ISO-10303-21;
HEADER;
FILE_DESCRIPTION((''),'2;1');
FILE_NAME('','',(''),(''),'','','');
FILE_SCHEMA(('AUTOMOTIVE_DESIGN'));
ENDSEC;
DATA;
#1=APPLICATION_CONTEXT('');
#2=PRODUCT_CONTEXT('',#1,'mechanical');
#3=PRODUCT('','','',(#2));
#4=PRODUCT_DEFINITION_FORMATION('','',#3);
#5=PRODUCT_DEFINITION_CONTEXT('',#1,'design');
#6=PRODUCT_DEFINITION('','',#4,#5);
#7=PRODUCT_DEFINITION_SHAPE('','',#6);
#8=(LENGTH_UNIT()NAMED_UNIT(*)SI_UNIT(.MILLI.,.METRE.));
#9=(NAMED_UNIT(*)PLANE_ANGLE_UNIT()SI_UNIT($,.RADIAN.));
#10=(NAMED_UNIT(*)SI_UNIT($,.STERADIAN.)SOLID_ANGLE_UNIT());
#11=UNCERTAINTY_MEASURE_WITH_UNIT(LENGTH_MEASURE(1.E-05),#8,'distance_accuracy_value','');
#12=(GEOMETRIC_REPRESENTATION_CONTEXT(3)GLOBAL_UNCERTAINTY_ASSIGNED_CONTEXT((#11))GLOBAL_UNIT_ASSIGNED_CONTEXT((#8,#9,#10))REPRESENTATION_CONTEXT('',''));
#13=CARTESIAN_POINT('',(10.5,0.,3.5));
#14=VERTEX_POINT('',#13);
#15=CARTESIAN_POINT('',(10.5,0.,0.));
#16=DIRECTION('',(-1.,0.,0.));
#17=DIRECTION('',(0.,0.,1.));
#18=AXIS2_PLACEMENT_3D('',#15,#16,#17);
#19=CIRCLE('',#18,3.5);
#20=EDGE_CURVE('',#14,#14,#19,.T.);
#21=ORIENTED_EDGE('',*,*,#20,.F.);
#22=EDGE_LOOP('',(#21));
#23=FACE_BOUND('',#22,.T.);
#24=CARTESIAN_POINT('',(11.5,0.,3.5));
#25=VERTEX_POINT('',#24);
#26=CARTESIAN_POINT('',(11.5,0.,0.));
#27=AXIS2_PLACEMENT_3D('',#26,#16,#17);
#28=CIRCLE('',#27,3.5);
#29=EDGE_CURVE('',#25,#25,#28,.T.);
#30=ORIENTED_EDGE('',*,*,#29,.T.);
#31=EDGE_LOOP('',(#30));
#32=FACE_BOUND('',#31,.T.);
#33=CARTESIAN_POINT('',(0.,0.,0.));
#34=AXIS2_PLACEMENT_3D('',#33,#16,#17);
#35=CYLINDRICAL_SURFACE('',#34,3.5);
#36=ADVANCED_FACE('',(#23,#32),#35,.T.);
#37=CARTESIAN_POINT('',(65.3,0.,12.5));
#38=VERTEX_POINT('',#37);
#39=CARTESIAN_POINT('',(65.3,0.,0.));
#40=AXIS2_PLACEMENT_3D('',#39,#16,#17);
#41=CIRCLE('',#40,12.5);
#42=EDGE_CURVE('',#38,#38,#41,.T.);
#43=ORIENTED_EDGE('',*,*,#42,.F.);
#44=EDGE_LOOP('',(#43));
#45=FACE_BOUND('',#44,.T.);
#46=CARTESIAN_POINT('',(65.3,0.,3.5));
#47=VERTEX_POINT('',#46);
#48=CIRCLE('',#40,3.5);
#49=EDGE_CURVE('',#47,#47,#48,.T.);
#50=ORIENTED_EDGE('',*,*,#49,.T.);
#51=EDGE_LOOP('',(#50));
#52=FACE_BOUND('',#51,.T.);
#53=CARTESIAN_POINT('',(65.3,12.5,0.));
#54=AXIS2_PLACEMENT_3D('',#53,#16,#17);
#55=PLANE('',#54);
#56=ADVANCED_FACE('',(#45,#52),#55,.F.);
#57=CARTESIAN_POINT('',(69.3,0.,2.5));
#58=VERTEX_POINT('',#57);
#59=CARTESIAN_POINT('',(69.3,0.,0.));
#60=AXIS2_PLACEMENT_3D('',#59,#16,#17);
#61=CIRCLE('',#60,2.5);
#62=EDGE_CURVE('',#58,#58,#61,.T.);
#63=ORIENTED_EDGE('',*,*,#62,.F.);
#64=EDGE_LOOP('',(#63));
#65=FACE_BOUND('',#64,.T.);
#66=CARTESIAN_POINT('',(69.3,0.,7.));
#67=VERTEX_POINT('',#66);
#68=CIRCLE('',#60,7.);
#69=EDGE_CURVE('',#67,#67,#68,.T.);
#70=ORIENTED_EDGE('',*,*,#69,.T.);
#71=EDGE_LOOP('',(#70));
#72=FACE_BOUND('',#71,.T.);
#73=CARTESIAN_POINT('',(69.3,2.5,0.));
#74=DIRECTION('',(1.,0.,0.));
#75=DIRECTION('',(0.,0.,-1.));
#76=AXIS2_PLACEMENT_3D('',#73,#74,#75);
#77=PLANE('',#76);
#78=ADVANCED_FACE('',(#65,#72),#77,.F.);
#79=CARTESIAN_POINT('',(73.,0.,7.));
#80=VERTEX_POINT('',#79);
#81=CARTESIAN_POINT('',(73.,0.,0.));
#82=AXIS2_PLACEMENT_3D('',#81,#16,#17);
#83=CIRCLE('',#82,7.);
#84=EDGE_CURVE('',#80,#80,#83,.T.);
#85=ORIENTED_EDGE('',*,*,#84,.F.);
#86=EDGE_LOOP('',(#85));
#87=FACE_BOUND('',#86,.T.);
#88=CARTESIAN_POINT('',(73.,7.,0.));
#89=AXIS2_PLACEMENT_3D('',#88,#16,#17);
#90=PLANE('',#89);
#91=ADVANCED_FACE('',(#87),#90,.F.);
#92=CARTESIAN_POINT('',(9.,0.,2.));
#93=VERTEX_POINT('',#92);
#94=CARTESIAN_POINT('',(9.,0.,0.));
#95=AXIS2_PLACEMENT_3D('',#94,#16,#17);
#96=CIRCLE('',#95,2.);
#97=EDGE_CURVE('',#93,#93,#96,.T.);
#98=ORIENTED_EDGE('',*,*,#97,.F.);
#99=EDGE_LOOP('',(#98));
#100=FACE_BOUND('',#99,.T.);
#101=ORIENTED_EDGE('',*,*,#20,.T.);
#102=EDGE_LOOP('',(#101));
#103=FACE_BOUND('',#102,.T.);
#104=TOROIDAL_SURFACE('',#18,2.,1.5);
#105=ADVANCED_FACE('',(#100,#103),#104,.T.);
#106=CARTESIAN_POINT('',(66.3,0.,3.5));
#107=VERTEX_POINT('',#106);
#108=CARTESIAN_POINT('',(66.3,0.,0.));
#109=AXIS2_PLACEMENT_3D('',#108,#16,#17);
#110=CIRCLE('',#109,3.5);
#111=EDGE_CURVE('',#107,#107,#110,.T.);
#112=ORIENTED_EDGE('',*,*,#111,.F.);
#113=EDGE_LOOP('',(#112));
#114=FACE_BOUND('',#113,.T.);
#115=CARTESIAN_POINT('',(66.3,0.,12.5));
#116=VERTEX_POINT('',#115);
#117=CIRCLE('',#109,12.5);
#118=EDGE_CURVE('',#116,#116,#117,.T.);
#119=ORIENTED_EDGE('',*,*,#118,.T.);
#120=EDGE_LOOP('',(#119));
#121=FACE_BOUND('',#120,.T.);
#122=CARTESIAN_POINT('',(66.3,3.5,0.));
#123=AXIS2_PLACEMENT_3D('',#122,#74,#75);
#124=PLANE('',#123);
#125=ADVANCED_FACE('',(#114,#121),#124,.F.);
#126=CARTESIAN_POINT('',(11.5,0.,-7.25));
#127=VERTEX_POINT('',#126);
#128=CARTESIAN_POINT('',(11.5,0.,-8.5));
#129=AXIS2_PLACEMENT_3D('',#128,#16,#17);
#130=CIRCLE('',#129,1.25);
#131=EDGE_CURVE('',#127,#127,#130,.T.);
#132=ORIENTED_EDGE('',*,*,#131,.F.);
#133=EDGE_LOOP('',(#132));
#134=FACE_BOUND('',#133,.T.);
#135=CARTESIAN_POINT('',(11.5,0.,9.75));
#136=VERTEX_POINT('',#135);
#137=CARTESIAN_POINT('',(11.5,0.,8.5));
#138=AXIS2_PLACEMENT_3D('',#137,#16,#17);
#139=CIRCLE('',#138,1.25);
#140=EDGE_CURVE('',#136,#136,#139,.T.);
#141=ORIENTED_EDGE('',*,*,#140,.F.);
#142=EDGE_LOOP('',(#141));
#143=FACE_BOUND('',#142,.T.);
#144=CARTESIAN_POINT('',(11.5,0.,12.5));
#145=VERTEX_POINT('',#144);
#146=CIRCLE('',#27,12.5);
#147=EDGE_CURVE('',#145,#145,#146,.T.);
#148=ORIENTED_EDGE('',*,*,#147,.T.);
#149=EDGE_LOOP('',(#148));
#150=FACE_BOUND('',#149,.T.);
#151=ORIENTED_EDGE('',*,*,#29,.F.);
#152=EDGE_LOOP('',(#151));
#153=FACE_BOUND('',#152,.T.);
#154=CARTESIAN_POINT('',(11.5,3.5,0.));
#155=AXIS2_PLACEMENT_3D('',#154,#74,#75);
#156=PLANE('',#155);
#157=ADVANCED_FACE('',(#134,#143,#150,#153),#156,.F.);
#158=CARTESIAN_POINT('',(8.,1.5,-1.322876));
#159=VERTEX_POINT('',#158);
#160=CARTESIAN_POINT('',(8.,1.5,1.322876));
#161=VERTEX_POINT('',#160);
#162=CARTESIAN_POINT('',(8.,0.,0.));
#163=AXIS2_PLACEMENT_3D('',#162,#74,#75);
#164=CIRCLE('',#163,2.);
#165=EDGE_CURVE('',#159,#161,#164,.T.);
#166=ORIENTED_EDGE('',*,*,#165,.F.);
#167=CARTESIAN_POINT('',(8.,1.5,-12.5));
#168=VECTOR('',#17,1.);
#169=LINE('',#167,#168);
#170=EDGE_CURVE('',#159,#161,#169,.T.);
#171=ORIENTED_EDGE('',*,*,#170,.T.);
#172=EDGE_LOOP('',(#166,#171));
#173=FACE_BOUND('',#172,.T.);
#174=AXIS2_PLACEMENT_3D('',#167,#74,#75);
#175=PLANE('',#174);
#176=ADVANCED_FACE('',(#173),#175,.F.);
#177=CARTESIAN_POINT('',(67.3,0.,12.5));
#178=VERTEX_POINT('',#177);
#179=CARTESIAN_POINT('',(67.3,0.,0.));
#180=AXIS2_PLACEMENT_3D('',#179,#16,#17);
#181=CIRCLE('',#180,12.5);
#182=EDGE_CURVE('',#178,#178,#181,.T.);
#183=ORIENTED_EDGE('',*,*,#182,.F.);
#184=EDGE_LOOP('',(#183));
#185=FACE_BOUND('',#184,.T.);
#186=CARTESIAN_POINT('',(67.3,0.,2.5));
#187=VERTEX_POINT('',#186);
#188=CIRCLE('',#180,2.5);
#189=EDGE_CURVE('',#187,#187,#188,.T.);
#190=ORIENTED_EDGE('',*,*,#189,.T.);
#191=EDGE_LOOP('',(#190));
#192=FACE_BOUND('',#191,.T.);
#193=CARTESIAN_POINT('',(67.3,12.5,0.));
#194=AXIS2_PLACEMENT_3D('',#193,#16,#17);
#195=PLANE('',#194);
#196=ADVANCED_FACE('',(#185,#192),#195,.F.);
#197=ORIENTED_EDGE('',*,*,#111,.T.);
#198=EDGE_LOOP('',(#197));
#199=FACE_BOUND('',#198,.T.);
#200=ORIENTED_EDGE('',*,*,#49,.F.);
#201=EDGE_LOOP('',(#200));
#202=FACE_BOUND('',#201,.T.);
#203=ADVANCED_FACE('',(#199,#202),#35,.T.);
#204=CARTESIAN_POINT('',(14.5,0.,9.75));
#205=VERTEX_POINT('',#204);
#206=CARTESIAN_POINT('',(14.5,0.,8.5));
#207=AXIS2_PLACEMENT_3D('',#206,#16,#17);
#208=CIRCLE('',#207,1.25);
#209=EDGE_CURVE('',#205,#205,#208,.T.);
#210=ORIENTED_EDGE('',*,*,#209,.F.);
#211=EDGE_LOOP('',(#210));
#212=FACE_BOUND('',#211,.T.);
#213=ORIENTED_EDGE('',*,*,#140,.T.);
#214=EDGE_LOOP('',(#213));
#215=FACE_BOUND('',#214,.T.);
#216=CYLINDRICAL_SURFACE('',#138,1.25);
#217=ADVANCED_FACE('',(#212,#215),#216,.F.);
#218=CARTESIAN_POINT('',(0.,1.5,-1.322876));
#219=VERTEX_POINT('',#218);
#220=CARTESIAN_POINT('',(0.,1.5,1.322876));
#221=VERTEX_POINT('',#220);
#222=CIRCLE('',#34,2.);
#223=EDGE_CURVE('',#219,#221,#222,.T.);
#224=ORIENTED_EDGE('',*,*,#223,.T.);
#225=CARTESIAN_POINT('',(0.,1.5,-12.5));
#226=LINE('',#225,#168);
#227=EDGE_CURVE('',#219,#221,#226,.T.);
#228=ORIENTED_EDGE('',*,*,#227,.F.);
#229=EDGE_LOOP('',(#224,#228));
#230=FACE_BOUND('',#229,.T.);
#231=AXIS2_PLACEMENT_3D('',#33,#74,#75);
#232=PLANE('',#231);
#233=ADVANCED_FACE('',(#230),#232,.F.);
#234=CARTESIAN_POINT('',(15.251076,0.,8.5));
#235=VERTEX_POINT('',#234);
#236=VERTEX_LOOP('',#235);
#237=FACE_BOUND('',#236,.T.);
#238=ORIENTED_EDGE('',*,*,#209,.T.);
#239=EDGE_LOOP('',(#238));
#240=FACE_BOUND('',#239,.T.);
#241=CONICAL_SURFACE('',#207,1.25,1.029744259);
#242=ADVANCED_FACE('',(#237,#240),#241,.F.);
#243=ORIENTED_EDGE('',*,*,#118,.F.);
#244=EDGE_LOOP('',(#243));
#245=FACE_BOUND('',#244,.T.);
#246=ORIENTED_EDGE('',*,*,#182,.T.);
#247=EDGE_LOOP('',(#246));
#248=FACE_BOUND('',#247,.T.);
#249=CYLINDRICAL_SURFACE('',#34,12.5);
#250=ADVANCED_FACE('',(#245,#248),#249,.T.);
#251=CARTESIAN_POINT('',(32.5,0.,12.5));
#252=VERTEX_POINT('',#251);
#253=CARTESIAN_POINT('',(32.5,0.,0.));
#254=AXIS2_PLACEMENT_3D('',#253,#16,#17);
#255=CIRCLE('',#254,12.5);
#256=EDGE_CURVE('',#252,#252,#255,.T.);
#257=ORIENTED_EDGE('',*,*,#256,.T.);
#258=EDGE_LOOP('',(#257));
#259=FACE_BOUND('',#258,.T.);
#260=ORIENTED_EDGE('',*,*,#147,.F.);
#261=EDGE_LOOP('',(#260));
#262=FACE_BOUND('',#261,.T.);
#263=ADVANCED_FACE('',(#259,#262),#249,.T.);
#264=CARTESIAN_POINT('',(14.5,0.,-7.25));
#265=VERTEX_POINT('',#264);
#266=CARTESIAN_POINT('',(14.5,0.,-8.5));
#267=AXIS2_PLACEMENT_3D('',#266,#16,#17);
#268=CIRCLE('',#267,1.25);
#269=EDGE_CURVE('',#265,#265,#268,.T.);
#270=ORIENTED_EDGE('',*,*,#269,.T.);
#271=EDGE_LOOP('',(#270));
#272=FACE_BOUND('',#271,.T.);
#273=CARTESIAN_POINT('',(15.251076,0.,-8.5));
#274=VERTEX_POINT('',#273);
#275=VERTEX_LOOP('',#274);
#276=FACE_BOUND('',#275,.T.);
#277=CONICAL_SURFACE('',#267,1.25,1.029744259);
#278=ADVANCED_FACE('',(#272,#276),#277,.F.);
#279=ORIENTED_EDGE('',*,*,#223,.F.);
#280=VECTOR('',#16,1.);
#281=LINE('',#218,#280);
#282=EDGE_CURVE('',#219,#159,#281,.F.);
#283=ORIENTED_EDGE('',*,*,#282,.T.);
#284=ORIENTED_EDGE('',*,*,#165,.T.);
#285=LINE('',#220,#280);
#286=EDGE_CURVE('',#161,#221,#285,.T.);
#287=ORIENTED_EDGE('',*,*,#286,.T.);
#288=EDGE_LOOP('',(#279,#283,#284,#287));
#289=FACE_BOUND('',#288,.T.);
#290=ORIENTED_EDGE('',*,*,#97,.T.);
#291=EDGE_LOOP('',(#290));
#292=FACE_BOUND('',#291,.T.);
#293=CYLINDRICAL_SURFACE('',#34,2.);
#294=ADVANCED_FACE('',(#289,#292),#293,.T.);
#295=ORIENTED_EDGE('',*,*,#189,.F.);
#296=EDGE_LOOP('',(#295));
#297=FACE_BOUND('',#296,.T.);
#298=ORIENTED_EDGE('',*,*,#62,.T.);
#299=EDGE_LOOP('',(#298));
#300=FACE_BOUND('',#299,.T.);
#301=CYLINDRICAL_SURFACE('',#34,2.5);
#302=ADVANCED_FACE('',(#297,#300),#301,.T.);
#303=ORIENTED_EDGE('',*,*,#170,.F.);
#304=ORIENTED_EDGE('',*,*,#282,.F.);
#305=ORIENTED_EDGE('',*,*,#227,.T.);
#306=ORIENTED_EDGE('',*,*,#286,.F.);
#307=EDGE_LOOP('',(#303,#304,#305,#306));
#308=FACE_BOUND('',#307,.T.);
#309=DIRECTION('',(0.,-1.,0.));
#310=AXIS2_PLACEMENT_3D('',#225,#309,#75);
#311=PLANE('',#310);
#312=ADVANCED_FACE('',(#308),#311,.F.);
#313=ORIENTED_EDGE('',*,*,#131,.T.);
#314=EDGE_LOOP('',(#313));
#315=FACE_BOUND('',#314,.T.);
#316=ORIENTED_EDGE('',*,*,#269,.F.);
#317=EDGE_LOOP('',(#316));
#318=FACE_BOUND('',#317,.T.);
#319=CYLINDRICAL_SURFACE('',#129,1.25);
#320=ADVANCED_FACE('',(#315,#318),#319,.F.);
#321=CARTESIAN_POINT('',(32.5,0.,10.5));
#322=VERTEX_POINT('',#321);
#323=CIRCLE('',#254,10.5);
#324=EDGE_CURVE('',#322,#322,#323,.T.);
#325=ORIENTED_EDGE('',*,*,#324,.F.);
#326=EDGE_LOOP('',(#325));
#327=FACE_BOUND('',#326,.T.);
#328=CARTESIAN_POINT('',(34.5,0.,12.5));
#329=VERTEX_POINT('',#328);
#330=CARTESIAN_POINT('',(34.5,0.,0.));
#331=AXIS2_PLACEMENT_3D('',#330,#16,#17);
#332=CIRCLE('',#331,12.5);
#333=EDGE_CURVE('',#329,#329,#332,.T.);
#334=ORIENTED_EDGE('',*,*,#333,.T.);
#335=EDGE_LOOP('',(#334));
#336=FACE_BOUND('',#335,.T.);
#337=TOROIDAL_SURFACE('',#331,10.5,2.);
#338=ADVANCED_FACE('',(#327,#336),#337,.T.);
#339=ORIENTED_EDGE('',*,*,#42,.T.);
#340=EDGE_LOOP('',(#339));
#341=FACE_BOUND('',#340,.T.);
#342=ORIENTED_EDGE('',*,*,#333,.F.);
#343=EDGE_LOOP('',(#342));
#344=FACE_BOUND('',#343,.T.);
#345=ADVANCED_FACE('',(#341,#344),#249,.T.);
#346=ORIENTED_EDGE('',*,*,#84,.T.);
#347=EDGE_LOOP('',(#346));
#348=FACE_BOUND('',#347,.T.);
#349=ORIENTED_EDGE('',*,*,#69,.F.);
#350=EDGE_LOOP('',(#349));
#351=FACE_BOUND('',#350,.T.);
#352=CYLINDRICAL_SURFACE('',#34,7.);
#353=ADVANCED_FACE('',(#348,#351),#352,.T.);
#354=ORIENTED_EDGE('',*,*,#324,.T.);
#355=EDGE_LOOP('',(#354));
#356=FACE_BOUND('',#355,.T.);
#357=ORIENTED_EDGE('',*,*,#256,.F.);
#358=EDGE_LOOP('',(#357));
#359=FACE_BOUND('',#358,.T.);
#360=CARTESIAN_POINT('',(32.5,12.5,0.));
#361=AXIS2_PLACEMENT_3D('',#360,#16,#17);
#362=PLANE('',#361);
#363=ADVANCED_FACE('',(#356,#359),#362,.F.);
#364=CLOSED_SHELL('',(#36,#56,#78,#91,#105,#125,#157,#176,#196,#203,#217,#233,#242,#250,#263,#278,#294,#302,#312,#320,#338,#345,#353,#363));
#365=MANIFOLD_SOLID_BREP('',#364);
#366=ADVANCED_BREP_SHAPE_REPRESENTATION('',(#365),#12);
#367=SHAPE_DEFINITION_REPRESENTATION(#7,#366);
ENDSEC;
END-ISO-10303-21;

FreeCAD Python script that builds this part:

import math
import FreeCAD as App
import Part
import Sketcher
Q = App.Units.Quantity


def add_polygon(sketch, points):
    """Adds a closed chain of lines whose ends are joined by coincident constraints."""
    first, n = sketch.GeometryCount, len(points)
    for a, b in zip(points, points[1:] + points[:1]):
        sketch.addGeometry(Part.LineSegment(App.Vector(*a, 0), App.Vector(*b, 0)), False)
    for i in range(n):
        sketch.addConstraint(Sketcher.Constraint("Coincident", first + i, 2, first + (i + 1) % n, 1))

doc = App.newDocument("Part")
params = doc.addObject("Spreadsheet::Sheet", "Params")
for row, (alias, value) in enumerate([
    ("sketch1_radius", "2 mm"),
    ("sketch1_radius2", "1.5 mm"),
    ("sketch1_width", "73 mm"),
    ("sketch1_width2", "1 mm"),
    ("sketch1_width3", "21 mm"),
    ("revolution_angle", "360 deg"),
    ("sketch2_diameter", "2.5 mm"),
    ("hole_diameter", "2.5 mm"),
    ("hole_depth", "3 mm"),
    ("sketch3_width", "8 mm"),
    ("sketch3_height", "0.5 mm"),
], start=1):
    params.set(f"A{row}", alias)
    params.set(f"B{row}", "=" + value)
    params.setAlias(f"B{row}", alias)

body = doc.addObject("PartDesign::Body", "Body")

# Sketch on XY plane
sketch1 = doc.addObject("Sketcher::SketchObject", "Sketch")
body.addObject(sketch1)
sketch1.AttachmentSupport = (doc.XY_Plane, [""])
sketch1.MapMode = "FlatFace"
sketch1.addGeometry([
    Part.LineSegment(App.Vector(0, 2, 0), App.Vector(0, 0, 0)),  # 0
    Part.LineSegment(App.Vector(0, 0, 0), App.Vector(73, 0, 0)),  # 1
    Part.LineSegment(App.Vector(73, 0, 0), App.Vector(73, 7, 0)),  # 2
    Part.LineSegment(App.Vector(73, 7, 0), App.Vector(69.3, 7, 0)),  # 3
    Part.LineSegment(App.Vector(69.3, 7, 0), App.Vector(69.3, 2.5, 0)),  # 4
    Part.LineSegment(App.Vector(69.3, 2.5, 0), App.Vector(67.3, 2.5, 0)),  # 5
    Part.LineSegment(App.Vector(67.3, 2.5, 0), App.Vector(67.3, 12.5, 0)),  # 6
    Part.LineSegment(App.Vector(67.3, 12.5, 0), App.Vector(66.3, 12.5, 0)),  # 7
    Part.LineSegment(App.Vector(66.3, 12.5, 0), App.Vector(66.3, 3.5, 0)),  # 8
    Part.LineSegment(App.Vector(66.3, 3.5, 0), App.Vector(65.3, 3.5, 0)),  # 9
    Part.LineSegment(App.Vector(65.3, 3.5, 0), App.Vector(65.3, 12.5, 0)),  # 10
    Part.LineSegment(App.Vector(65.3, 12.5, 0), App.Vector(34.5, 12.5, 0)),  # 11
    Part.ArcOfCircle(Part.Circle(App.Vector(34.5, 10.5, 0), App.Vector(0, 0, 1), 2), math.radians(90), math.radians(180)),  # 12
    Part.LineSegment(App.Vector(32.5, 10.5, 0), App.Vector(32.5, 12.5, 0)),  # 13
    Part.LineSegment(App.Vector(32.5, 12.5, 0), App.Vector(11.5, 12.5, 0)),  # 14
    Part.LineSegment(App.Vector(11.5, 12.5, 0), App.Vector(11.5, 3.5, 0)),  # 15
    Part.LineSegment(App.Vector(11.5, 3.5, 0), App.Vector(10.5, 3.5, 0)),  # 16
    Part.ArcOfCircle(Part.Circle(App.Vector(10.5, 2, 0), App.Vector(0, 0, 1), 1.5), math.radians(90), math.radians(180)),  # 17
    Part.LineSegment(App.Vector(9, 2, 0), App.Vector(0, 2, 0)),  # 18
], False)
sketch1.addConstraint([
    Sketcher.Constraint("Coincident", 0, 2, 1, 1),
    Sketcher.Constraint("Coincident", 1, 2, 2, 1),
    Sketcher.Constraint("Coincident", 2, 2, 3, 1),
    Sketcher.Constraint("Coincident", 3, 2, 4, 1),
    Sketcher.Constraint("Coincident", 4, 2, 5, 1),
    Sketcher.Constraint("Coincident", 5, 2, 6, 1),
    Sketcher.Constraint("Coincident", 6, 2, 7, 1),
    Sketcher.Constraint("Coincident", 7, 2, 8, 1),
    Sketcher.Constraint("Coincident", 8, 2, 9, 1),
    Sketcher.Constraint("Coincident", 9, 2, 10, 1),
    Sketcher.Constraint("Coincident", 10, 2, 11, 1),
    Sketcher.Constraint("Tangent", 11, 2, 12, 1),
    Sketcher.Constraint("Tangent", 12, 2, 13, 1),
    Sketcher.Constraint("Coincident", 13, 2, 14, 1),
    Sketcher.Constraint("Coincident", 14, 2, 15, 1),
    Sketcher.Constraint("Coincident", 15, 2, 16, 1),
    Sketcher.Constraint("Tangent", 16, 2, 17, 1),
    Sketcher.Constraint("Coincident", 17, 2, 18, 1),
    Sketcher.Constraint("Coincident", 18, 2, 0, 1),
    Sketcher.Constraint("Vertical", 0),
    Sketcher.Constraint("Horizontal", 1),
    Sketcher.Constraint("Vertical", 2),
    Sketcher.Constraint("Horizontal", 3),
    Sketcher.Constraint("Vertical", 4),
    Sketcher.Constraint("Horizontal", 5),
    Sketcher.Constraint("Vertical", 6),
    Sketcher.Constraint("Horizontal", 7),
    Sketcher.Constraint("Vertical", 8),
    Sketcher.Constraint("Horizontal", 9),
    Sketcher.Constraint("Vertical", 10),
    Sketcher.Constraint("Horizontal", 11),
    Sketcher.Constraint("Vertical", 13),
    Sketcher.Constraint("Horizontal", 14),
    Sketcher.Constraint("Vertical", 15),
    Sketcher.Constraint("Horizontal", 16),
    Sketcher.Constraint("Horizontal", 18),
    Sketcher.Constraint("Coincident", 0, 2, -1, 1),
    Sketcher.Constraint("Horizontal", 7, 2, 10, 2),
    Sketcher.Constraint("Horizontal", 11, 2, 13, 2),
    Sketcher.Constraint("Horizontal", 9, 2, 15, 2),
    Sketcher.Constraint("Equal", 7, 9),
    Sketcher.Constraint("Equal", 9, 16),
    Sketcher.Constraint("Equal", 5, 0),
    Sketcher.Constraint("Equal", 18, 8),
    Sketcher.Constraint("Equal", 0, 13),
    Sketcher.Constraint("Radius", 12, Q("2 mm")),
    Sketcher.Constraint("Radius", 17, Q("1.5 mm")),
    Sketcher.Constraint("DistanceX", 1, 1, 1, 2, Q("73 mm")),
    Sketcher.Constraint("DistanceX", 7, 2, 7, 1, Q("1 mm")),
    Sketcher.Constraint("DistanceX", 14, 2, 14, 1, Q("21 mm")),
    Sketcher.Constraint("DistanceX", 18, 2, 18, 1, Q("9 mm")),
    Sketcher.Constraint("DistanceY", 2, 1, 2, 2, Q("7 mm")),
    Sketcher.Constraint("DistanceY", 6, 1, 6, 2, Q("10 mm")),
    Sketcher.Constraint("DistanceX", 3, 2, 3, 1, Q("3.7 mm")),
    Sketcher.Constraint("DistanceY", 4, 2, 4, 1, Q("4.5 mm")),
])
sketch1.setExpression("Constraints[45]", "Params.sketch1_radius")
sketch1.setExpression("Constraints[46]", "Params.sketch1_radius2")
sketch1.setExpression("Constraints[47]", "Params.sketch1_width")
sketch1.setExpression("Constraints[48]", "Params.sketch1_width2")
sketch1.setExpression("Constraints[49]", "Params.sketch1_width3")
revolution = doc.addObject("PartDesign::Revolution", "Revolution")
body.addObject(revolution)
revolution.Profile = sketch1
revolution.ReferenceAxis = (sketch1, ["H_Axis"])
revolution.setExpression("Angle", "Params.revolution_angle")

# Sketch on YZ plane
sketch2 = doc.addObject("Sketcher::SketchObject", "Sketch001")
body.addObject(sketch2)
sketch2.AttachmentSupport = (doc.YZ_Plane, [""])
sketch2.MapMode = "FlatFace"
sketch2.AttachmentOffset = App.Placement(App.Vector(0, 0, 11.5), App.Rotation())
sketch2.addGeometry([
    Part.Circle(App.Vector(0, -8.5, 0), App.Vector(0, 0, 1), 1.2),
    Part.Circle(App.Vector(0, 8.5, 0), App.Vector(0, 0, 1), 1.2),
], False)
sketch2.addConstraint([
    Sketcher.Constraint("Equal", 0, 1),
    Sketcher.Constraint("Symmetric", 0, 3, 1, 3, -1, 1),
    Sketcher.Constraint("PointOnObject", 0, 3, -2),
    Sketcher.Constraint("Diameter", 0, Q("2.5 mm")),
    Sketcher.Constraint("DistanceY", 0, 3, 1, 3, Q("17 mm")),
])
sketch2.setExpression("Constraints[3]", "Params.sketch2_diameter")
doc.recompute()
hole = doc.addObject("PartDesign::Hole", "Hole")
body.addObject(hole)
hole.Profile = sketch2
hole.ThreadType = "None"
hole.setExpression("Diameter", "Params.hole_diameter")
hole.DepthType = "Dimension"
hole.setExpression("Depth", "Params.hole_depth")
hole.DrillPoint = "Angled"
hole.DrillPointAngle = 118
hole.Reversed = True

# Sketch on XY plane
sketch3 = doc.addObject("Sketcher::SketchObject", "Sketch002")
body.addObject(sketch3)
sketch3.AttachmentSupport = (doc.XY_Plane, [""])
sketch3.MapMode = "FlatFace"
add_polygon(sketch3, [(0, 2), (0, 1.5), (8, 1.5), (8, 2)])  # lines 0-3
sketch3.addConstraint([
    Sketcher.Constraint("Vertical", 0),
    Sketcher.Constraint("Horizontal", 1),
    Sketcher.Constraint("Vertical", 2),
    Sketcher.Constraint("Horizontal", 3),
    Sketcher.Constraint("PointOnObject", 0, 2, -2),
    Sketcher.Constraint("DistanceX", 1, 1, 1, 2, Q("8 mm")),
    Sketcher.Constraint("DistanceY", 0, 2, 0, 1, Q("0.5 mm")),
    Sketcher.Constraint("DistanceY", -1, 1, 2, 2, Q("2 mm")),
])
sketch3.setExpression("Constraints[9]", "Params.sketch3_width")
sketch3.setExpression("Constraints[10]", "Params.sketch3_height")
pocket1 = doc.addObject("PartDesign::Pocket", "Pocket")
body.addObject(pocket1)
pocket1.Profile = sketch3
pocket1.Type = "ThroughAll"
pocket1.Midplane = True

doc.recompute()
